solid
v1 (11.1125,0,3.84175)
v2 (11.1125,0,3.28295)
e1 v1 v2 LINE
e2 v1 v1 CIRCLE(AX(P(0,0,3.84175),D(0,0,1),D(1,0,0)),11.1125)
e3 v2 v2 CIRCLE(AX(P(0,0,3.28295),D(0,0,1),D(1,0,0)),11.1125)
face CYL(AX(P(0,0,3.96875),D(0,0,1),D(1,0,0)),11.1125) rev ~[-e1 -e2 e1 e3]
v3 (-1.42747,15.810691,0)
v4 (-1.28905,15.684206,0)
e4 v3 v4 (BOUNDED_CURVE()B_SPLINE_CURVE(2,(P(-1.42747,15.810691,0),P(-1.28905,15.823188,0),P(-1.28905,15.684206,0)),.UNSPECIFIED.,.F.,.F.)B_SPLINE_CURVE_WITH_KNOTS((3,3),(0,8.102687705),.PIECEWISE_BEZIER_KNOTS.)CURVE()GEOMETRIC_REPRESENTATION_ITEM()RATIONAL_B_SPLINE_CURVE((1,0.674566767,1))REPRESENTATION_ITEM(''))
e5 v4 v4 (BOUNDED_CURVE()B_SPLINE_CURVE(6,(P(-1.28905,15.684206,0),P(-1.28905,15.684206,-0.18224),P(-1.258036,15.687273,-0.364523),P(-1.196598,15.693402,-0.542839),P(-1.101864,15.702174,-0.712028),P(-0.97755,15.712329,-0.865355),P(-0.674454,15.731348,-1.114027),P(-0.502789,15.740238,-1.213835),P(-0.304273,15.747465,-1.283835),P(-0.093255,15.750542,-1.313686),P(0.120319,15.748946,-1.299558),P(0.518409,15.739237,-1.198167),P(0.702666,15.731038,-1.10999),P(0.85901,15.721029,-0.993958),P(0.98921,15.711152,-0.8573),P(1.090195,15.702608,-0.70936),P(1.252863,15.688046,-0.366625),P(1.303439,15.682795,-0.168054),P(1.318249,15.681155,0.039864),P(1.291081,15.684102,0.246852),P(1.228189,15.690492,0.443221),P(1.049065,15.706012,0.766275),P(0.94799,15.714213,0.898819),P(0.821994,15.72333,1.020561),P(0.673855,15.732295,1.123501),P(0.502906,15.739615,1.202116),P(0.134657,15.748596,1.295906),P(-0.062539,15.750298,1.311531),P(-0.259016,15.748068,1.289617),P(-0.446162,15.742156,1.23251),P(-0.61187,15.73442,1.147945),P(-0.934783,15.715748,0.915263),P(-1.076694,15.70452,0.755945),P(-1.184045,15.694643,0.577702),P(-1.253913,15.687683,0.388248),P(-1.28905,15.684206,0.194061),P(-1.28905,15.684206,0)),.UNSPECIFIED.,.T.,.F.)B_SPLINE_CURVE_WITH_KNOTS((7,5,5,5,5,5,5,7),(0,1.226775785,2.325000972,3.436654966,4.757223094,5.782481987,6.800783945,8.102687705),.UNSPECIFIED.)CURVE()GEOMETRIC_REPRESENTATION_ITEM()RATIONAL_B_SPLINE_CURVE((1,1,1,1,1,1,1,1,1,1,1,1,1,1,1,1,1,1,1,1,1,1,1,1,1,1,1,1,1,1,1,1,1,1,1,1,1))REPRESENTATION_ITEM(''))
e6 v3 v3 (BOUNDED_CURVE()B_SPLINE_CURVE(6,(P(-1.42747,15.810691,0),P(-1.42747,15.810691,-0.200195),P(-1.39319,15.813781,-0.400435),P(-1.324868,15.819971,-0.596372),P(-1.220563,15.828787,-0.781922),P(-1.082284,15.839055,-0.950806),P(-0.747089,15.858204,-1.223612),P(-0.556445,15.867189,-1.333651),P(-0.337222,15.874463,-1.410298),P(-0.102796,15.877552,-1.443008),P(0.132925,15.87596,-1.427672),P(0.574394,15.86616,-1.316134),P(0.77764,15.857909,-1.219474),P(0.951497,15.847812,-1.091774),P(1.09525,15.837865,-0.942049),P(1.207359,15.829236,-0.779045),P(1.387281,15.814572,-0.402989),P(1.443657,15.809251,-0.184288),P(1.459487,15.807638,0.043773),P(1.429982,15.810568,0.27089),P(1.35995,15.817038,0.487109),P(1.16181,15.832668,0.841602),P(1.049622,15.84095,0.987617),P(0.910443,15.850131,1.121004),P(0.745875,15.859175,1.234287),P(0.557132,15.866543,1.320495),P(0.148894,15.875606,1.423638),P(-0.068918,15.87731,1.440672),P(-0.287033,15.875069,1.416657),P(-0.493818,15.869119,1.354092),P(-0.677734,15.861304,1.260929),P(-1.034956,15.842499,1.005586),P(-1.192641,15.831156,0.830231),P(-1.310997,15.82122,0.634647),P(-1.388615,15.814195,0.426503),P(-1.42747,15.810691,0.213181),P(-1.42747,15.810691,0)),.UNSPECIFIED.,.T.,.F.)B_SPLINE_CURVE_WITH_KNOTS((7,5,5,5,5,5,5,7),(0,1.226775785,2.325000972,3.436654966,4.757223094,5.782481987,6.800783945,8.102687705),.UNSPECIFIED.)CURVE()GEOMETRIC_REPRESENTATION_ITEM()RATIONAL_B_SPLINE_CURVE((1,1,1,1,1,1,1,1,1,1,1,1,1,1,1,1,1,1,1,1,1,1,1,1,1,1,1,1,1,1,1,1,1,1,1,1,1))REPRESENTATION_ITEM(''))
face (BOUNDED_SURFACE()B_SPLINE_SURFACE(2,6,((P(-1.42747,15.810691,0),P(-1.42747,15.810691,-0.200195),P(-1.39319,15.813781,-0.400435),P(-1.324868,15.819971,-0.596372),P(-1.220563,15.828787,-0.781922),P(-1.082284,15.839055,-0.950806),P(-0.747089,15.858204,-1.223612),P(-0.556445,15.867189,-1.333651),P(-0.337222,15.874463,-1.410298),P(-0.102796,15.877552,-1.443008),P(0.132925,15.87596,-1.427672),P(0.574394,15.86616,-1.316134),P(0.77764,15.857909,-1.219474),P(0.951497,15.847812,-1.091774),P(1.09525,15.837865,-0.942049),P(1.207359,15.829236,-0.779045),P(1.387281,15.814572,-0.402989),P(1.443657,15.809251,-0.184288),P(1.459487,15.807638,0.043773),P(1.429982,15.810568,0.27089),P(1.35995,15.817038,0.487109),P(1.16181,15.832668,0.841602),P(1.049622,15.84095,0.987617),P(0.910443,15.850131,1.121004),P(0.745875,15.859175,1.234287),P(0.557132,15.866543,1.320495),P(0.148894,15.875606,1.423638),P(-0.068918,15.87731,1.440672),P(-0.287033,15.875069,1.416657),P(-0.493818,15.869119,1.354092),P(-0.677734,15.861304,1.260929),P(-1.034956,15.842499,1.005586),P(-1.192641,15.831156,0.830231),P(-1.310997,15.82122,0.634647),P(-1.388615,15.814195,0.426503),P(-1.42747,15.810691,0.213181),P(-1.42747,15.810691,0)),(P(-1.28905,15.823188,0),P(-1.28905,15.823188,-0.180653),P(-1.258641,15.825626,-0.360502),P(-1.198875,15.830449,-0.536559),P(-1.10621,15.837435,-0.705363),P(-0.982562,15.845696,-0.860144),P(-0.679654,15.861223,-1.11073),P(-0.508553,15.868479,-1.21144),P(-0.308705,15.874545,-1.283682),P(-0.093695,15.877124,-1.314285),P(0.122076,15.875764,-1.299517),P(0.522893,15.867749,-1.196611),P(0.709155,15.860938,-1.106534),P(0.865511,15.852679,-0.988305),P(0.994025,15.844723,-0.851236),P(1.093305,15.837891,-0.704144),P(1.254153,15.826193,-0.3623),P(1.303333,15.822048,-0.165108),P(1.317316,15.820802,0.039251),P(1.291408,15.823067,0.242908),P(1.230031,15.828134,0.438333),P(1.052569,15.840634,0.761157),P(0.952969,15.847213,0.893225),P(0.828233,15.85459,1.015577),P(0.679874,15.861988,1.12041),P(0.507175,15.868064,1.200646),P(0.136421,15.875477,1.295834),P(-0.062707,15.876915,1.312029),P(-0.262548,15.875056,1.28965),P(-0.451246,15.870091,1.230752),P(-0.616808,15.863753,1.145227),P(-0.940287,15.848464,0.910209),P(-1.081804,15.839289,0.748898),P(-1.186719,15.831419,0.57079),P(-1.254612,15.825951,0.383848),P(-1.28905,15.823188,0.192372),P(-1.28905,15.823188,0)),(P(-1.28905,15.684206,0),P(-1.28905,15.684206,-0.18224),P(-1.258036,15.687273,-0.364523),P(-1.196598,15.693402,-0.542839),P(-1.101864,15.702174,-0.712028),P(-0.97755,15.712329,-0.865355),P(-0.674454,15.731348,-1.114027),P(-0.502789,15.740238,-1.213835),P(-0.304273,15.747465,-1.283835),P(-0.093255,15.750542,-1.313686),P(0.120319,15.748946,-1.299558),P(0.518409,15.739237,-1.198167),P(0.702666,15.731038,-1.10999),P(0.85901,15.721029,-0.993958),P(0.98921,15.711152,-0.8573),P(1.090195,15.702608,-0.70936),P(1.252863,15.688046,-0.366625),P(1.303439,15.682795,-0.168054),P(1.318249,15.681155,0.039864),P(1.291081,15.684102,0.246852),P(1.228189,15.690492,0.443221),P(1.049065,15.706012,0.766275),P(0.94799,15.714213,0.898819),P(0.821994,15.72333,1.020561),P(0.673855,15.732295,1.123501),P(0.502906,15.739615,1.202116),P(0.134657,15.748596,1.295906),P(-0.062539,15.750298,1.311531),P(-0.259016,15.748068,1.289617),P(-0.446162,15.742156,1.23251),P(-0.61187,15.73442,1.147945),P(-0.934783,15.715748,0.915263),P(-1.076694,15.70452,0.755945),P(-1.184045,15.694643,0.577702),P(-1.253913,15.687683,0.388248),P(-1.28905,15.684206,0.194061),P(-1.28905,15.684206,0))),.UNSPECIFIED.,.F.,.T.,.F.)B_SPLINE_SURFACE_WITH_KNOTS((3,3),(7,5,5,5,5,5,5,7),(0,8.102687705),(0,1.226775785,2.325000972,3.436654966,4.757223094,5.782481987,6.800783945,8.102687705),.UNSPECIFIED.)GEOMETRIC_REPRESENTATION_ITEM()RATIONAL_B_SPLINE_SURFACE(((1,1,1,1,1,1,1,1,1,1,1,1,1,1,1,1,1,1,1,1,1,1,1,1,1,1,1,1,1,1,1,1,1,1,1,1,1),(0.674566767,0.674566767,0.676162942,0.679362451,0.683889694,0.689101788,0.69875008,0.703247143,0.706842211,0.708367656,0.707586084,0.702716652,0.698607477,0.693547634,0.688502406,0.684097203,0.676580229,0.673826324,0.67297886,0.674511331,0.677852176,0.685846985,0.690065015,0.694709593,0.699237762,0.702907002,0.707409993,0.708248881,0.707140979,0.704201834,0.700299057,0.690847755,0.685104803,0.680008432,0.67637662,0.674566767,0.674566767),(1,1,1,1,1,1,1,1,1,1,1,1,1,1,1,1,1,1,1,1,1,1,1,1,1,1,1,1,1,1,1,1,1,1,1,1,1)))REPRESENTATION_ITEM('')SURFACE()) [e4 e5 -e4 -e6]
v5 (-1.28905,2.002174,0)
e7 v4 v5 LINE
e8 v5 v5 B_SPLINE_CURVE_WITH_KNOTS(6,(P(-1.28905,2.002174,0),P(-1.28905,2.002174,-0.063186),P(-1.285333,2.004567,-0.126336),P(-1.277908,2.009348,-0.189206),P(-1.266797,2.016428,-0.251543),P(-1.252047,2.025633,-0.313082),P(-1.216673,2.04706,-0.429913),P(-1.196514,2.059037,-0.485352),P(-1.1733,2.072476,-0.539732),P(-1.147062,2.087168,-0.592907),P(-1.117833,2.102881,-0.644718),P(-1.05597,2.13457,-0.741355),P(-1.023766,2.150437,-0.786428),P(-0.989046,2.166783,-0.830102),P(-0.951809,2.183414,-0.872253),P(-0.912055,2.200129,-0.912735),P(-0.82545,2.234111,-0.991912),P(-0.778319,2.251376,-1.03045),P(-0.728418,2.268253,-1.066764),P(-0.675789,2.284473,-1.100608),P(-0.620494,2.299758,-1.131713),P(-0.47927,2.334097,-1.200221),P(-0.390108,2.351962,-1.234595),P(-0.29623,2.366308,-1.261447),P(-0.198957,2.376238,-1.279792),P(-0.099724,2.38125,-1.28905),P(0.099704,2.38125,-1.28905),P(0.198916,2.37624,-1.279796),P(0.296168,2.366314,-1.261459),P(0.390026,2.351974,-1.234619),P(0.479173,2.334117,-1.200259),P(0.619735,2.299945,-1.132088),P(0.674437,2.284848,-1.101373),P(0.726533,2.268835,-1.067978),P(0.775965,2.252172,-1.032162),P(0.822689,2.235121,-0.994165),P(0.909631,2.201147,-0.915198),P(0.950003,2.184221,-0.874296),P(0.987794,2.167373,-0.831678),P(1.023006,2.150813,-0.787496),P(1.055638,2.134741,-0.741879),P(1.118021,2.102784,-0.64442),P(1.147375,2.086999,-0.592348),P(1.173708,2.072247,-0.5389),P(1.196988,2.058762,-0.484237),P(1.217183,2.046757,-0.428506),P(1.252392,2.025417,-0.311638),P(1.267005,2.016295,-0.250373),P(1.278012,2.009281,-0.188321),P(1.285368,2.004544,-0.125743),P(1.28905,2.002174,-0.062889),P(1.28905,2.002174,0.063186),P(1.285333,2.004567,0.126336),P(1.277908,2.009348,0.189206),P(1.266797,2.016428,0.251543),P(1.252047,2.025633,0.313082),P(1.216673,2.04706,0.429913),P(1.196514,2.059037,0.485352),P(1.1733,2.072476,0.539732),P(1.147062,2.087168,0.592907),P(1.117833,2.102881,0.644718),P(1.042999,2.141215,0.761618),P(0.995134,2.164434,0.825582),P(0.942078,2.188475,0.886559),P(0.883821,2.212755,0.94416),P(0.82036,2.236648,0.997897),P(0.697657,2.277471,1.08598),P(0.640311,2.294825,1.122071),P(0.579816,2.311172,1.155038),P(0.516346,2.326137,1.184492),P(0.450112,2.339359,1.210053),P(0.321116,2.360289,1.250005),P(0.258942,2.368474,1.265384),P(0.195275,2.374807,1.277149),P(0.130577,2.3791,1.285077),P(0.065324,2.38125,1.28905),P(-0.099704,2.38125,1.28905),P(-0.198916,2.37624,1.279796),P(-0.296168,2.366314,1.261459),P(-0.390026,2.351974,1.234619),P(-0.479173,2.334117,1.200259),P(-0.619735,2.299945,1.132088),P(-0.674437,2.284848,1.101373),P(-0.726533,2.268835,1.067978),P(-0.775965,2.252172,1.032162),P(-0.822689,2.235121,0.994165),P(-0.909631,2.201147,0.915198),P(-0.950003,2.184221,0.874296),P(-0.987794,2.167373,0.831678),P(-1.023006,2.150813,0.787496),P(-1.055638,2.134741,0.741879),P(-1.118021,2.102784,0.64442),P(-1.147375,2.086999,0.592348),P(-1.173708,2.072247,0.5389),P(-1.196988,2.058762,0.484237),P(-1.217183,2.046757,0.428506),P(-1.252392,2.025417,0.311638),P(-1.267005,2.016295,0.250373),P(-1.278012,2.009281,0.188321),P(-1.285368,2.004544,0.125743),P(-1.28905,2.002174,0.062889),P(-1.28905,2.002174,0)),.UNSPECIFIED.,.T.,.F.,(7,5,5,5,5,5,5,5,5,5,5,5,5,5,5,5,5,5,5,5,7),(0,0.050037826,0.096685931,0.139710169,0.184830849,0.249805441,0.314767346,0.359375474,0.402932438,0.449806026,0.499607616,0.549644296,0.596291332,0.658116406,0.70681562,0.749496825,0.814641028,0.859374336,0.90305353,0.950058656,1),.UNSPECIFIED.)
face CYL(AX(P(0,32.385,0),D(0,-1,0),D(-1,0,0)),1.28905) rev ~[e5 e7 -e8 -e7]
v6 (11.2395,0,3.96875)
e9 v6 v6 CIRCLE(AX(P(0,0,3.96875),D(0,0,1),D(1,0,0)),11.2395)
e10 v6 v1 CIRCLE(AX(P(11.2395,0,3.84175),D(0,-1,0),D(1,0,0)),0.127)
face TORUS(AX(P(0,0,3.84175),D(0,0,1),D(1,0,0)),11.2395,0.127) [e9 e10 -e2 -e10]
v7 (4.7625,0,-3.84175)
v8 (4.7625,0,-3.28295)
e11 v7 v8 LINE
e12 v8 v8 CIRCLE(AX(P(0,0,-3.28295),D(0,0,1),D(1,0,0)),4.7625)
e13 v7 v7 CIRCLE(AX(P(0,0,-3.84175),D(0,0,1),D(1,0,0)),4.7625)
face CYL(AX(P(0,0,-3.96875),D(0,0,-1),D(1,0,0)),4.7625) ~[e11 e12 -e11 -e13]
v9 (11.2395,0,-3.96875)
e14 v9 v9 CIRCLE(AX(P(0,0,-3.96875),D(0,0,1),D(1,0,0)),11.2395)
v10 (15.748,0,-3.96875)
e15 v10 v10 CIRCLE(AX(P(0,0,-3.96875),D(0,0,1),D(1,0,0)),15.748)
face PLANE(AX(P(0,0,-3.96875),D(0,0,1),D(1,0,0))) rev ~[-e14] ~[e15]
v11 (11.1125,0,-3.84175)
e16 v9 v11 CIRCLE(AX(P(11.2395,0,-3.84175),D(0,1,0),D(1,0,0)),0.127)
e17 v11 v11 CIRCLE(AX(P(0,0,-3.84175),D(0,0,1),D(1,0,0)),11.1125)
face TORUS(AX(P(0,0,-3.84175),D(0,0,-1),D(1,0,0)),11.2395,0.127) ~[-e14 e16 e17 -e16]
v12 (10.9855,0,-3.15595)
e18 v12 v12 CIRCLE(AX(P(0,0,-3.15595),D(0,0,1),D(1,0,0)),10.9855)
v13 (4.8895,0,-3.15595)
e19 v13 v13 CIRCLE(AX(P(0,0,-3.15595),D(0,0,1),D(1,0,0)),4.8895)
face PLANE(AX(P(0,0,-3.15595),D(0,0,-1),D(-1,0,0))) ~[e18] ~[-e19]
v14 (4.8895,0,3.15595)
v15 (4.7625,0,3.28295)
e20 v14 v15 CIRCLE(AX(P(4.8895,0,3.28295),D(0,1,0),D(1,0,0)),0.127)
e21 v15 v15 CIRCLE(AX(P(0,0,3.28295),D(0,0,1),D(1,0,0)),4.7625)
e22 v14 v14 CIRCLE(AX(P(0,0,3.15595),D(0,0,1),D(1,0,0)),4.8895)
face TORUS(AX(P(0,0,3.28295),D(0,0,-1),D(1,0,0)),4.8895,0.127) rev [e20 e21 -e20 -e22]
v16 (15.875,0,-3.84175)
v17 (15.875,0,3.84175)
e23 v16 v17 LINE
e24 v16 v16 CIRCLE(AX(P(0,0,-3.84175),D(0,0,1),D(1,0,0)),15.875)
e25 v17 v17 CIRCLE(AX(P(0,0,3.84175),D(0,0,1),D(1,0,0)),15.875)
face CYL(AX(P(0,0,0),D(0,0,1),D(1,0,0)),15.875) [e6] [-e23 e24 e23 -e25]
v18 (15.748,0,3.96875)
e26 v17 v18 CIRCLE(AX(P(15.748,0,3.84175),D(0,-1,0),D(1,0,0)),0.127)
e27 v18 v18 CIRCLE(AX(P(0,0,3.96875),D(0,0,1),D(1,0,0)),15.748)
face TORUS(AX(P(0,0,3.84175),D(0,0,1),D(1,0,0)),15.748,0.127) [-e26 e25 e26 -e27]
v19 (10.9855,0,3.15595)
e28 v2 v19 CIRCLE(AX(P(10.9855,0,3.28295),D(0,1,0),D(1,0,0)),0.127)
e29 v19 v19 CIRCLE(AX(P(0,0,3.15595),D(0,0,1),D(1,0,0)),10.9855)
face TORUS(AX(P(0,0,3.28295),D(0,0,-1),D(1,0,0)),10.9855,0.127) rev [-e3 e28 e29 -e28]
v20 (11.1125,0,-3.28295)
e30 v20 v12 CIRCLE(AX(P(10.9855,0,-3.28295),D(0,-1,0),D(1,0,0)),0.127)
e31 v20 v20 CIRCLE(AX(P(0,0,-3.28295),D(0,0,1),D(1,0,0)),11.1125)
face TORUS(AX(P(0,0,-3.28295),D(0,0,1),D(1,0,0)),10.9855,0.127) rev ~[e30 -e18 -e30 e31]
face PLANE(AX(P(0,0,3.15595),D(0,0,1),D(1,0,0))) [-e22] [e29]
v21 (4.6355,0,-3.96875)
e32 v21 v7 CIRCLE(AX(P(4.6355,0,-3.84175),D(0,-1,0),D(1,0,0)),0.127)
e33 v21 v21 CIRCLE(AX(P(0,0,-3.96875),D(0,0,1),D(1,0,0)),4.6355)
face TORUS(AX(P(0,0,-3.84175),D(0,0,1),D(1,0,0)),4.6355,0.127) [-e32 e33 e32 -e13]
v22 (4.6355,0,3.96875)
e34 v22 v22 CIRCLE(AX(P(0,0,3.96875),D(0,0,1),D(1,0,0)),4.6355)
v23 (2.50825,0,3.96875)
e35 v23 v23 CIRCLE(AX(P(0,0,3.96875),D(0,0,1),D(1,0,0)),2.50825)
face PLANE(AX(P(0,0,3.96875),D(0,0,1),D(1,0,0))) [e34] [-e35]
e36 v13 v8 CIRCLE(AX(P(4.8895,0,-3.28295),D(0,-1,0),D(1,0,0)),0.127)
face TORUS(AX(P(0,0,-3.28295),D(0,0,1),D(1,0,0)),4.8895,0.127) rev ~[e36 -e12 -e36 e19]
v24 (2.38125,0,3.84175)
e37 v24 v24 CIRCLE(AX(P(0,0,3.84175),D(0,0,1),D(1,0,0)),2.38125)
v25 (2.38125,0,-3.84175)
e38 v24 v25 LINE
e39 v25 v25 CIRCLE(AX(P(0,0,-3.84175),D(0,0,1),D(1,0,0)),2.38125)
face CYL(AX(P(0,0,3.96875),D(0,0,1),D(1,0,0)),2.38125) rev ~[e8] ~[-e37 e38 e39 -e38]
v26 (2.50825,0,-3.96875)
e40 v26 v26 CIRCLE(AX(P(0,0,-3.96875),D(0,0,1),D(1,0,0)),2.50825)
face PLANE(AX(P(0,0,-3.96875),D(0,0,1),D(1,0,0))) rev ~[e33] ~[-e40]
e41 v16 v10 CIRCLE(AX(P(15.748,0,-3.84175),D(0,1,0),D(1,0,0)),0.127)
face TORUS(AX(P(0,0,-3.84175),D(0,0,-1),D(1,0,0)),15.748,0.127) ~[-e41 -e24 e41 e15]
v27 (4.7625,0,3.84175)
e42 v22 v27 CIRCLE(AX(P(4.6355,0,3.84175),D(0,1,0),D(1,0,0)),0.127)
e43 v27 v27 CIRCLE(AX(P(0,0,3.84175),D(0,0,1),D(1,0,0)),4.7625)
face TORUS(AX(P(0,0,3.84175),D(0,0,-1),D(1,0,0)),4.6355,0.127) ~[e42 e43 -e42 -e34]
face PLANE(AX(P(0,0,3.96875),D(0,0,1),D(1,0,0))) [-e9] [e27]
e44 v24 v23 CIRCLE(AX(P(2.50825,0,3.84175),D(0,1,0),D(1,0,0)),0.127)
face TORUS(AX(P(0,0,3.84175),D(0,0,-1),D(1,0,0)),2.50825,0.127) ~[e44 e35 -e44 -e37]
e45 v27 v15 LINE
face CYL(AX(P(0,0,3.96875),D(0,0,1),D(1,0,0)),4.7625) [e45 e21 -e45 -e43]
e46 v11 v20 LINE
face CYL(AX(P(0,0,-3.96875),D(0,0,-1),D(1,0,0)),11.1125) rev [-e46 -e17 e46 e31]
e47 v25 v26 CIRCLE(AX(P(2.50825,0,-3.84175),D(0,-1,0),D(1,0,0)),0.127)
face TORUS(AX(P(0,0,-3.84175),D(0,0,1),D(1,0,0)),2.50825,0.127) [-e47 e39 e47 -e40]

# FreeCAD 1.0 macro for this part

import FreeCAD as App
import Part
import Sketcher
Q = App.Units.Quantity


def edges_at(feature, points):
    """Names of the edges that pass closest to the given points."""
    edges = feature.Shape.Edges
    near = lambda p: min(range(len(edges)), key=lambda i: edges[i].distToShape(Part.Vertex(*p))[0])
    return sorted({f"Edge{near(p) + 1}" for p in points})

doc = App.newDocument("Part")
body = doc.addObject("PartDesign::Body", "Body")

# Sketch on XY plane
sketch1 = doc.addObject("Sketcher::SketchObject", "Sketch")
body.addObject(sketch1)
sketch1.AttachmentSupport = (doc.XY_Plane, [""])
sketch1.MapMode = "FlatFace"
sketch1.addGeometry(Part.Circle(App.Vector(0, 0, 0), App.Vector(0, 0, 1), 16), False)
sketch1.addConstraint([
    Sketcher.Constraint("Coincident", 0, 3, -1, 1),
    Sketcher.Constraint("Diameter", 0, Q("1.25 in")),
])
pad1 = doc.addObject("PartDesign::Pad", "Pad")
body.addObject(pad1)
pad1.Profile = sketch1
pad1.Length = Q("0.3125 in")
pad1.Midplane = True

# Sketch on XY plane
sketch2 = doc.addObject("Sketcher::SketchObject", "Sketch001")
body.addObject(sketch2)
sketch2.AttachmentSupport = (doc.XY_Plane, [""])
sketch2.MapMode = "FlatFace"
sketch2.AttachmentOffset = App.Placement(App.Vector(0, 0, 0.15625 * 25.4), App.Rotation())
sketch2.addGeometry(Part.Circle(App.Vector(0, 0, 0), App.Vector(0, 0, 1), 2.4), False)
sketch2.addConstraint([
    Sketcher.Constraint("Coincident", 0, 3, -1, 1),
    Sketcher.Constraint("Diameter", 0, Q("0.1875 in")),
])
pocket1 = doc.addObject("PartDesign::Pocket", "Pocket")
body.addObject(pocket1)
pocket1.Profile = sketch2
pocket1.Type = "ThroughAll"

# Sketch on XY plane
sketch3 = doc.addObject("Sketcher::SketchObject", "Sketch002")
body.addObject(sketch3)
sketch3.AttachmentSupport = (doc.XY_Plane, [""])
sketch3.MapMode = "FlatFace"
sketch3.AttachmentOffset = App.Placement(App.Vector(0, 0, 0.15625 * 25.4), App.Rotation())
sketch3.addGeometry([
    Part.Circle(App.Vector(0, 0, 0), App.Vector(0, 0, 1), 11.1),
    Part.Circle(App.Vector(0, 0, 0), App.Vector(0, 0, 1), 4.8),
], False)
sketch3.addConstraint([
    Sketcher.Constraint("Coincident", 0, 3, -1, 1),
    Sketcher.Constraint("Coincident", 1, 3, -1, 1),
    Sketcher.Constraint("Diameter", 0, Q("0.875 in")),
    Sketcher.Constraint("Diameter", 1, Q("0.375 in")),
])
pocket2 = doc.addObject("PartDesign::Pocket", "Pocket001")
body.addObject(pocket2)
pocket2.Profile = sketch3
pocket2.Length = Q("0.032 in")
doc.recompute()

mirrored = doc.addObject("PartDesign::Mirrored", "Mirrored")
body.addObject(mirrored)
mirrored.Originals = [pocket2]
mirrored.MirrorPlane = (doc.XY_Plane, [""])
body.Tip = mirrored

# Sketch on XZ plane
sketch4 = doc.addObject("Sketcher::SketchObject", "Sketch003")
body.addObject(sketch4)
sketch4.AttachmentSupport = (doc.XZ_Plane, [""])
sketch4.MapMode = "FlatFace"
sketch4.AttachmentOffset = App.Placement(App.Vector(0, 0, -0.625 * 25.4), App.Rotation())
sketch4.addGeometry(Part.Circle(App.Vector(0, 0, 0), App.Vector(0, 0, 1), 1.3), False)
sketch4.addConstraint([
    Sketcher.Constraint("Coincident", 0, 3, -1, 1),
    Sketcher.Constraint("Diameter", 0, Q("0.1015 in")),
])
doc.recompute()
hole = doc.addObject("PartDesign::Hole", "Hole")
body.addObject(hole)
hole.Profile = sketch4
hole.ThreadType = "None"
hole.Diameter = Q("0.1015 in")
hole.DepthType = "Dimension"
hole.Depth = Q("0.65 in")
hole.DrillPoint = "Angled"
hole.DrillPointAngle = 118
hole.Reversed = True
doc.recompute()

fillet = doc.addObject("PartDesign::Fillet", "Fillet")
body.addObject(fillet)
fillet.Base = (hole, edges_at(hole, [
    (-4.763, 0, 3.969),
    (-11.113, 0, 3.156),
    (-4.763, 0, 3.156),
    (-11.113, 0, 3.969),
    (-4.763, 0, -3.156),
    (-11.113, 0, -3.969),
    (-11.113, 0, -3.156),
    (-4.763, 0, -3.969),
    (-15.875, 0, -3.969),
    (1.289, 15.823, 0),
    (-15.875, 0, 3.969),
    (-2.381, 0, -3.969),
    (-2.381, 0, 3.969),
]))
fillet.Radius = Q("0.005 in")

doc.recompute()
